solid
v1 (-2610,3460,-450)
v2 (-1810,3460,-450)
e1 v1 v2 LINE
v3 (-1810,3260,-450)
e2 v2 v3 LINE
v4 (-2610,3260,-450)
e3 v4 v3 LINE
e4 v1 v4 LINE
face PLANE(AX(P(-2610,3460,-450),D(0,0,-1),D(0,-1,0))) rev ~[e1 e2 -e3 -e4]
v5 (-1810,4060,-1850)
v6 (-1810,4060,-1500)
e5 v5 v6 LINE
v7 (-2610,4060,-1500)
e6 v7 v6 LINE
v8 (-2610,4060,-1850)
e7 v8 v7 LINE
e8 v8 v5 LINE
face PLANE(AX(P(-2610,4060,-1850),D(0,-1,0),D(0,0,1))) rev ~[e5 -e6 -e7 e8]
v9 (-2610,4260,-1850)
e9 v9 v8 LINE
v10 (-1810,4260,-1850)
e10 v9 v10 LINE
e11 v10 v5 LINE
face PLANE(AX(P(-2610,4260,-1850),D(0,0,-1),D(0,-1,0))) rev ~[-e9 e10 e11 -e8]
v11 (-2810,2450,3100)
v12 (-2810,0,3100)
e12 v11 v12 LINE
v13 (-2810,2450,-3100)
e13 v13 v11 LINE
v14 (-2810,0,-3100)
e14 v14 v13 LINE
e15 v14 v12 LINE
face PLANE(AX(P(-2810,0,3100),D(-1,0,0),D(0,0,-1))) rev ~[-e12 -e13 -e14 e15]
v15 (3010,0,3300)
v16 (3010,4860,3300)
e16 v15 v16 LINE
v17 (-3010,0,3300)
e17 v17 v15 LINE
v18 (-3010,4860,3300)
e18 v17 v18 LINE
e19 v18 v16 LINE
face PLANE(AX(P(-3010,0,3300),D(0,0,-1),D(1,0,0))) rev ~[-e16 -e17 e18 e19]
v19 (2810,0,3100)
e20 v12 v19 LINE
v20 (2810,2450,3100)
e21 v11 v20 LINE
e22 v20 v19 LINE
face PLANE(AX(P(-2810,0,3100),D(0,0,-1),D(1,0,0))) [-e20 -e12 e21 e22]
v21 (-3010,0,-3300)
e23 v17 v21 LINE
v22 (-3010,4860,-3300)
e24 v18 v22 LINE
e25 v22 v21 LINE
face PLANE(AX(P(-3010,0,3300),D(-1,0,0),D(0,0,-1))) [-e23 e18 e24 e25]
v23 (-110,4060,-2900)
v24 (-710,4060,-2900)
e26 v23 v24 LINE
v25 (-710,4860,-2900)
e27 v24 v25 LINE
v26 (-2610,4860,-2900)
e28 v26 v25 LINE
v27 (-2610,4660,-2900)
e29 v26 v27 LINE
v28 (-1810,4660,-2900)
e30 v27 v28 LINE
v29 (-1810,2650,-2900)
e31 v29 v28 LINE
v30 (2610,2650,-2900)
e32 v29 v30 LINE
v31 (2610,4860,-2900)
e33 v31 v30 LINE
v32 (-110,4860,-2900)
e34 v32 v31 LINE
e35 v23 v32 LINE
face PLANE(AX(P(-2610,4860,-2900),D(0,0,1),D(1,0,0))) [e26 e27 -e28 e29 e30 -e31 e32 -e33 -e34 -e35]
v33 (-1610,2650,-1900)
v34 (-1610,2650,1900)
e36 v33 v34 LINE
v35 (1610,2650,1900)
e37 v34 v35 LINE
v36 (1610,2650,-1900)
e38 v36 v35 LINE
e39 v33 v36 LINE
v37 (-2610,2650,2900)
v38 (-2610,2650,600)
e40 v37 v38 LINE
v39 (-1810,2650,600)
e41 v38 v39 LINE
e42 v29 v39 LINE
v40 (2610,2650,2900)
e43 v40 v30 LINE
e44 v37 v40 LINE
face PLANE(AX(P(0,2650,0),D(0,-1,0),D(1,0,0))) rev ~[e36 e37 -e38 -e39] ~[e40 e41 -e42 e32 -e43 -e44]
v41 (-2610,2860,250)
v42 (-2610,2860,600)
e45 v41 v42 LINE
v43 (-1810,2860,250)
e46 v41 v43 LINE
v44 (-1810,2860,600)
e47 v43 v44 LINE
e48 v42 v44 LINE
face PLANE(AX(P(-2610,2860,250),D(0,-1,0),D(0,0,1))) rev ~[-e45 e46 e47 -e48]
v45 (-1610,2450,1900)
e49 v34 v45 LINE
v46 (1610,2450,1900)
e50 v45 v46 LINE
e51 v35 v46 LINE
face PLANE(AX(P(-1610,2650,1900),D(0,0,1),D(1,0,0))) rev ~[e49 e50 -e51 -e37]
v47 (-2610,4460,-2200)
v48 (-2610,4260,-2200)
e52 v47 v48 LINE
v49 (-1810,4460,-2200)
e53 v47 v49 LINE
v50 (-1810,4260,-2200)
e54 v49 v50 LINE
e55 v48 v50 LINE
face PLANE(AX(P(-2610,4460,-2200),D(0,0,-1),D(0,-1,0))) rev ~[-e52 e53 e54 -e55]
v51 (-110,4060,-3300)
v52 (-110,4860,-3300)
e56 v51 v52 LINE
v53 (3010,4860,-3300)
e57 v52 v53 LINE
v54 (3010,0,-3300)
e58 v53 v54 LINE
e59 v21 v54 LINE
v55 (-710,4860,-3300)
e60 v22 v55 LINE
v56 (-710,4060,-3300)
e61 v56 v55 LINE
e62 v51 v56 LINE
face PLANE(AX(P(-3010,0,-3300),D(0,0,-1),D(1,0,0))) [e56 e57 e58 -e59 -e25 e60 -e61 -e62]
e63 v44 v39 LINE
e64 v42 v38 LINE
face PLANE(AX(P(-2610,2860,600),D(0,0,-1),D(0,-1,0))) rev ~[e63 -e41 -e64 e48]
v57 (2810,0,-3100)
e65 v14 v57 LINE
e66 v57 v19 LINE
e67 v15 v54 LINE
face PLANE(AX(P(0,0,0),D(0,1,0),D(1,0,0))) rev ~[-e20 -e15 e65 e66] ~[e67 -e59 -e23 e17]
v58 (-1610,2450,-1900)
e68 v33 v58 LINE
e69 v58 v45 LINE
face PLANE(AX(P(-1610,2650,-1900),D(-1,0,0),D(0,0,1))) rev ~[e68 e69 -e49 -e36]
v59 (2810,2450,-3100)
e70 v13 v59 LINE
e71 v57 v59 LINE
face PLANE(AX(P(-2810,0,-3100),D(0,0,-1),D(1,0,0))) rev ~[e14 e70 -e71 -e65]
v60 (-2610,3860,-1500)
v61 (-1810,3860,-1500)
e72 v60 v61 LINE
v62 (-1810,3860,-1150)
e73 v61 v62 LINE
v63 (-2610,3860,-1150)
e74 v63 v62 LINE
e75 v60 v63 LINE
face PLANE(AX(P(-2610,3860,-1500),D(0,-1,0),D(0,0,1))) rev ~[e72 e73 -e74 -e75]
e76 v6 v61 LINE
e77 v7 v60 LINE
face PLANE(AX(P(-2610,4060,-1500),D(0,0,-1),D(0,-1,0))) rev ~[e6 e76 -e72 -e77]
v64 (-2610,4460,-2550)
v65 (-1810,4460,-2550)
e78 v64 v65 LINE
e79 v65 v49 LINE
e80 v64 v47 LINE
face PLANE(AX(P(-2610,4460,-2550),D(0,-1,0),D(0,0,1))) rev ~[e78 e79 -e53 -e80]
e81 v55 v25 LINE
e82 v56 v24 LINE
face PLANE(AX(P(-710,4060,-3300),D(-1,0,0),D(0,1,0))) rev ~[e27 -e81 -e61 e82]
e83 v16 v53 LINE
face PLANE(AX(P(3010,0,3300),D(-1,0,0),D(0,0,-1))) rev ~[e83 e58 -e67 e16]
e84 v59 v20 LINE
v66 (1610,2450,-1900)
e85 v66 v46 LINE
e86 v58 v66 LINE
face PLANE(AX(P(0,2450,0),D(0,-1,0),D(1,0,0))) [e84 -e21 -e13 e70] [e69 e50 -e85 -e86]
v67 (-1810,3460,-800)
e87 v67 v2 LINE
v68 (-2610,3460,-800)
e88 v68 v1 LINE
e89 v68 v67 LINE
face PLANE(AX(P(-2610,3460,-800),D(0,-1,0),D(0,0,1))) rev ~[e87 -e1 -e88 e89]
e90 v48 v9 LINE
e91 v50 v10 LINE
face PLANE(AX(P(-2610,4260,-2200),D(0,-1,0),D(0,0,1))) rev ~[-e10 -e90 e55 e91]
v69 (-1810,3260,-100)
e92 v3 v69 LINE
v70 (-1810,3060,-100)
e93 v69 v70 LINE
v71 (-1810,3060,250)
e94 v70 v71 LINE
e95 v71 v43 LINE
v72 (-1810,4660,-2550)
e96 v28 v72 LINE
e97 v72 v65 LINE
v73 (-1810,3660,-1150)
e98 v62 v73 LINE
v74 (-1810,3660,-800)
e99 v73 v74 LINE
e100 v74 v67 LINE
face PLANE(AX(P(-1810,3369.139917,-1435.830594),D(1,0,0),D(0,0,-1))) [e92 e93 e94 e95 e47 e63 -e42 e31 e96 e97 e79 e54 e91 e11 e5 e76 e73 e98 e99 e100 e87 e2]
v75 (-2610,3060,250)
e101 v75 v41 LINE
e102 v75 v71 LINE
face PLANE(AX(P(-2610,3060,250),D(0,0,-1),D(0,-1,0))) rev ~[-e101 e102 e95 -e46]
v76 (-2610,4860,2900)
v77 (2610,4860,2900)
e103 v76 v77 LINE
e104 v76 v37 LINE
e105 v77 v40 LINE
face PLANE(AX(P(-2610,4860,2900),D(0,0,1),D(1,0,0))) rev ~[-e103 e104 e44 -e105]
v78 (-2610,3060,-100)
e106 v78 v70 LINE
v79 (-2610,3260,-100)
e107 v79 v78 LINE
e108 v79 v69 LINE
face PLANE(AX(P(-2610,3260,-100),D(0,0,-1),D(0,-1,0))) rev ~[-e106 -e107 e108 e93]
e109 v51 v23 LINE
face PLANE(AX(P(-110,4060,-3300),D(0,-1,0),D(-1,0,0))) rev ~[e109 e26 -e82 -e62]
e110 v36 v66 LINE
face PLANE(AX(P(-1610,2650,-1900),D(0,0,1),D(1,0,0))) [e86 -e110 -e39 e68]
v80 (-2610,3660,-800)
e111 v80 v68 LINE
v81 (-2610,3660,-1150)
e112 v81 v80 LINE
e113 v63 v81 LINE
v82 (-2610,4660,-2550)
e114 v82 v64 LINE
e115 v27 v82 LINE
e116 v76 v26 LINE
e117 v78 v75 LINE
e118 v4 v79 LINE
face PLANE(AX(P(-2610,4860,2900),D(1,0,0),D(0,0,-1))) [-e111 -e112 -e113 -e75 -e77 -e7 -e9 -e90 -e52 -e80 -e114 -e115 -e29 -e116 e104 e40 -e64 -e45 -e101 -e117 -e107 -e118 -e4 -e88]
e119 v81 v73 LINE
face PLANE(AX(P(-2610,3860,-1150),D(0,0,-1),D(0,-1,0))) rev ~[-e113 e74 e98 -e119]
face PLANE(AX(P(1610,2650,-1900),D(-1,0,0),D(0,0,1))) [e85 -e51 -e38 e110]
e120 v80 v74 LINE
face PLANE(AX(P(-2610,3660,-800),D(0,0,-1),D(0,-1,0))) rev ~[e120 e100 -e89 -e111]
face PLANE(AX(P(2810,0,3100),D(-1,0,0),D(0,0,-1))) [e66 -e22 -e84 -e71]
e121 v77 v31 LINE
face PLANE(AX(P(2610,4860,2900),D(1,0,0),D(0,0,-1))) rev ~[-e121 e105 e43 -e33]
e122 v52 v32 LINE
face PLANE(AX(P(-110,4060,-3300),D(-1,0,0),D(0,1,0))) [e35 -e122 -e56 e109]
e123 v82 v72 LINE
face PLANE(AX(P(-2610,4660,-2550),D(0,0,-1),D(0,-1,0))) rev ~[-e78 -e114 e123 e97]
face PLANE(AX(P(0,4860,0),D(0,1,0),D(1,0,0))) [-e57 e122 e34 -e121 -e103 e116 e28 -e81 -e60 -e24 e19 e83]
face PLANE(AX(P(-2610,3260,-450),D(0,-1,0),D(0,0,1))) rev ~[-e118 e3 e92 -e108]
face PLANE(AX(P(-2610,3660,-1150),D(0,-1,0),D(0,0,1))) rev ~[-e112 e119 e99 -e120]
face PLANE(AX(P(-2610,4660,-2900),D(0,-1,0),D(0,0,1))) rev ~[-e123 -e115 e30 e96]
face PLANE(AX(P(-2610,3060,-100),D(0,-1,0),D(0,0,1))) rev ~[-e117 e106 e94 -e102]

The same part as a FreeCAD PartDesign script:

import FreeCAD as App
import Part
import Sketcher

V = App.Vector

doc = App.newDocument("Part")
body = doc.addObject("PartDesign::Body", "Body")

# Sketch on XZ plane
sketch1 = doc.addObject("Sketcher::SketchObject", "Sketch")
body.addObject(sketch1)
sketch1.AttachmentSupport = (doc.XZ_Plane, [""])
sketch1.MapMode = "FlatFace"
sketch1.addGeometry([
    Part.LineSegment(V(-3010, -3300, 0), V(-3010, 3300, 0)),  # 0
    Part.LineSegment(V(-3010, 3300, 0), V(3010, 3300, 0)),  # 1
    Part.LineSegment(V(3010, 3300, 0), V(3010, -3300, 0)),  # 2
    Part.LineSegment(V(3010, -3300, 0), V(-3010, -3300, 0)),  # 3
    Part.LineSegment(V(2810, 3100, 0), V(-2810, 3100, 0)),  # 4
    Part.LineSegment(V(-2810, 3100, 0), V(-2810, -3100, 0)),  # 5
    Part.LineSegment(V(-2810, -3100, 0), V(2810, -3100, 0)),  # 6
    Part.LineSegment(V(2810, -3100, 0), V(2810, 3100, 0)),  # 7
], False)
sketch1.addConstraint([
    Sketcher.Constraint("Coincident", 0, 2, 1, 1),
    Sketcher.Constraint("Coincident", 1, 2, 2, 1),
    Sketcher.Constraint("Coincident", 2, 2, 3, 1),
    Sketcher.Constraint("Coincident", 3, 2, 0, 1),
    Sketcher.Constraint("Coincident", 4, 2, 5, 1),
    Sketcher.Constraint("Coincident", 5, 2, 6, 1),
    Sketcher.Constraint("Coincident", 6, 2, 7, 1),
    Sketcher.Constraint("Coincident", 7, 2, 4, 1),
    Sketcher.Constraint("Vertical", 0),
    Sketcher.Constraint("Horizontal", 1),
    Sketcher.Constraint("Vertical", 2),
    Sketcher.Constraint("Horizontal", 3),
    Sketcher.Constraint("Horizontal", 4),
    Sketcher.Constraint("Vertical", 5),
    Sketcher.Constraint("Horizontal", 6),
    Sketcher.Constraint("Vertical", 7),
    Sketcher.Constraint("Symmetric", 0, 2, 2, 2, -1, 1),
    Sketcher.Constraint("Symmetric", 4, 2, 6, 2, -1, 1),
    Sketcher.Constraint("DistanceX", 1, 1, 1, 2, 6020.0),
    Sketcher.Constraint("DistanceX", 4, 2, 4, 1, 5620.0),
    Sketcher.Constraint("DistanceY", 0, 1, 0, 2, 6600.0),
    Sketcher.Constraint("DistanceY", 5, 2, 5, 1, 6200.0),
])
pad1 = doc.addObject("PartDesign::Pad", "Pad")
body.addObject(pad1)
pad1.Profile = sketch1
pad1.Length = 4860
pad1.Reversed = True

# Sketch on XZ plane
sketch2 = doc.addObject("Sketcher::SketchObject", "Sketch001")
body.addObject(sketch2)
sketch2.AttachmentSupport = (doc.XZ_Plane, [""])
sketch2.MapMode = "FlatFace"
sketch2.addGeometry([
    Part.LineSegment(V(-3010, 3300, 0), V(-3010, -3300, 0)),
    Part.LineSegment(V(-3010, -3300, 0), V(3010, -3300, 0)),
    Part.LineSegment(V(3010, -3300, 0), V(3010, 3300, 0)),
    Part.LineSegment(V(3010, 3300, 0), V(-3010, 3300, 0)),
], False)
sketch2.addConstraint([
    Sketcher.Constraint("Coincident", 0, 2, 1, 1),
    Sketcher.Constraint("Coincident", 1, 2, 2, 1),
    Sketcher.Constraint("Coincident", 2, 2, 3, 1),
    Sketcher.Constraint("Coincident", 3, 2, 0, 1),
    Sketcher.Constraint("Vertical", 0),
    Sketcher.Constraint("Horizontal", 1),
    Sketcher.Constraint("Vertical", 2),
    Sketcher.Constraint("Horizontal", 3),
    Sketcher.Constraint("Symmetric", 0, 2, 2, 2, -1, 1),
    Sketcher.Constraint("DistanceX", 1, 1, 1, 2, 6020.0),
    Sketcher.Constraint("DistanceY", 0, 2, 0, 1, 6600.0),
])
pad2 = doc.addObject("PartDesign::Pad", "Pad001")
body.addObject(pad2)
pad2.Profile = sketch2
pad2.Length = 300
pad2.Reversed = True

# Sketch on XZ plane
sketch3 = doc.addObject("Sketcher::SketchObject", "Sketch002")
body.addObject(sketch3)
sketch3.AttachmentSupport = (doc.XZ_Plane, [""])
sketch3.MapMode = "FlatFace"
sketch3.AttachmentOffset = App.Placement(V(0, 0, -4860), App.Rotation())
sketch3.addGeometry([
    Part.LineSegment(V(-2810, -3100, 0), V(-2810, 3100, 0)),  # 0
    Part.LineSegment(V(-2810, 3100, 0), V(2810, 3100, 0)),  # 1
    Part.LineSegment(V(2810, 3100, 0), V(2810, -3100, 0)),  # 2
    Part.LineSegment(V(2810, -3100, 0), V(-2810, -3100, 0)),  # 3
    Part.LineSegment(V(2610, 2900, 0), V(-2610, 2900, 0)),  # 4
    Part.LineSegment(V(-2610, 2900, 0), V(-2610, -2900, 0)),  # 5
    Part.LineSegment(V(-2610, -2900, 0), V(2610, -2900, 0)),  # 6
    Part.LineSegment(V(2610, -2900, 0), V(2610, 2900, 0)),  # 7
], False)
sketch3.addConstraint([
    Sketcher.Constraint("Coincident", 0, 2, 1, 1),
    Sketcher.Constraint("Coincident", 1, 2, 2, 1),
    Sketcher.Constraint("Coincident", 2, 2, 3, 1),
    Sketcher.Constraint("Coincident", 3, 2, 0, 1),
    Sketcher.Constraint("Coincident", 4, 2, 5, 1),
    Sketcher.Constraint("Coincident", 5, 2, 6, 1),
    Sketcher.Constraint("Coincident", 6, 2, 7, 1),
    Sketcher.Constraint("Coincident", 7, 2, 4, 1),
    Sketcher.Constraint("Vertical", 0),
    Sketcher.Constraint("Horizontal", 1),
    Sketcher.Constraint("Vertical", 2),
    Sketcher.Constraint("Horizontal", 3),
    Sketcher.Constraint("Horizontal", 4),
    Sketcher.Constraint("Vertical", 5),
    Sketcher.Constraint("Horizontal", 6),
    Sketcher.Constraint("Vertical", 7),
    Sketcher.Constraint("Symmetric", 0, 2, 2, 2, -1, 1),
    Sketcher.Constraint("Symmetric", 4, 2, 6, 2, -1, 1),
    Sketcher.Constraint("DistanceX", 1, 1, 1, 2, 5620.0),
    Sketcher.Constraint("DistanceX", 4, 2, 4, 1, 5220.0),
    Sketcher.Constraint("DistanceY", 0, 1, 0, 2, 6200.0),
    Sketcher.Constraint("DistanceY", 5, 2, 5, 1, 5800.0),
])
pad3 = doc.addObject("PartDesign::Pad", "Pad002")
body.addObject(pad3)
pad3.Profile = sketch3
pad3.Length = 2210

# Sketch on XZ plane
sketch4 = doc.addObject("Sketcher::SketchObject", "Sketch003")
body.addObject(sketch4)
sketch4.AttachmentSupport = (doc.XZ_Plane, [""])
sketch4.MapMode = "FlatFace"
sketch4.addGeometry([
    Part.LineSegment(V(-2810, 3100, 0), V(-2810, -3100, 0)),
    Part.LineSegment(V(-2810, -3100, 0), V(2810, -3100, 0)),
    Part.LineSegment(V(2810, -3100, 0), V(2810, 3100, 0)),
    Part.LineSegment(V(2810, 3100, 0), V(-2810, 3100, 0)),
], False)
sketch4.addConstraint([
    Sketcher.Constraint("Coincident", 0, 2, 1, 1),
    Sketcher.Constraint("Coincident", 1, 2, 2, 1),
    Sketcher.Constraint("Coincident", 2, 2, 3, 1),
    Sketcher.Constraint("Coincident", 3, 2, 0, 1),
    Sketcher.Constraint("Vertical", 0),
    Sketcher.Constraint("Horizontal", 1),
    Sketcher.Constraint("Vertical", 2),
    Sketcher.Constraint("Horizontal", 3),
    Sketcher.Constraint("Symmetric", 0, 2, 2, 2, -1, 1),
    Sketcher.Constraint("DistanceX", 1, 1, 1, 2, 5620.0),
    Sketcher.Constraint("DistanceY", 0, 2, 0, 1, 6200.0),
])
pocket1 = doc.addObject("PartDesign::Pocket", "Pocket")
body.addObject(pocket1)
pocket1.Profile = sketch4
pocket1.Length = 300

# Sketch on XZ plane
sketch5 = doc.addObject("Sketcher::SketchObject", "Sketch004")
body.addObject(sketch5)
sketch5.AttachmentSupport = (doc.XZ_Plane, [""])
sketch5.MapMode = "FlatFace"
sketch5.AttachmentOffset = App.Placement(V(0, 0, -2650), App.Rotation())
sketch5.addGeometry([
    Part.LineSegment(V(-2810, 3100, 0), V(-2810, -3100, 0)),  # 0
    Part.LineSegment(V(-2810, -3100, 0), V(2810, -3100, 0)),  # 1
    Part.LineSegment(V(2810, -3100, 0), V(2810, 3100, 0)),  # 2
    Part.LineSegment(V(2810, 3100, 0), V(-2810, 3100, 0)),  # 3
    Part.LineSegment(V(1610, -1900, 0), V(-1610, -1900, 0)),  # 4
    Part.LineSegment(V(-1610, -1900, 0), V(-1610, 1900, 0)),  # 5
    Part.LineSegment(V(-1610, 1900, 0), V(1610, 1900, 0)),  # 6
    Part.LineSegment(V(1610, 1900, 0), V(1610, -1900, 0)),  # 7
], False)
sketch5.addConstraint([
    Sketcher.Constraint("Coincident", 0, 2, 1, 1),
    Sketcher.Constraint("Coincident", 1, 2, 2, 1),
    Sketcher.Constraint("Coincident", 2, 2, 3, 1),
    Sketcher.Constraint("Coincident", 3, 2, 0, 1),
    Sketcher.Constraint("Coincident", 4, 2, 5, 1),
    Sketcher.Constraint("Coincident", 5, 2, 6, 1),
    Sketcher.Constraint("Coincident", 6, 2, 7, 1),
    Sketcher.Constraint("Coincident", 7, 2, 4, 1),
    Sketcher.Constraint("Vertical", 0),
    Sketcher.Constraint("Horizontal", 1),
    Sketcher.Constraint("Vertical", 2),
    Sketcher.Constraint("Horizontal", 3),
    Sketcher.Constraint("Horizontal", 4),
    Sketcher.Constraint("Vertical", 5),
    Sketcher.Constraint("Horizontal", 6),
    Sketcher.Constraint("Vertical", 7),
    Sketcher.Constraint("Symmetric", 0, 2, 2, 2, -1, 1),
    Sketcher.Constraint("Symmetric", 4, 2, 6, 2, -1, 1),
    Sketcher.Constraint("DistanceX", 1, 1, 1, 2, 5620.0),
    Sketcher.Constraint("DistanceX", 4, 2, 4, 1, 3220.0),
    Sketcher.Constraint("DistanceY", 0, 2, 0, 1, 6200.0),
    Sketcher.Constraint("DistanceY", 5, 1, 5, 2, 3800.0),
])
pad4 = doc.addObject("PartDesign::Pad", "Pad003")
body.addObject(pad4)
pad4.Profile = sketch5
pad4.Length = 200

# Sketch on YZ plane
sketch6 = doc.addObject("Sketcher::SketchObject", "Sketch005")
body.addObject(sketch6)
sketch6.AttachmentSupport = (doc.YZ_Plane, [""])
sketch6.MapMode = "FlatFace"
sketch6.AttachmentOffset = App.Placement(V(0, 0, -2610), App.Rotation())
sketch6.addGeometry([
    Part.LineSegment(V(4660, -2900, 0), V(4660, -2550, 0)),  # 0
    Part.LineSegment(V(4660, -2550, 0), V(4460, -2550, 0)),  # 1
    Part.LineSegment(V(4460, -2550, 0), V(4460, -2200, 0)),  # 2
    Part.LineSegment(V(4460, -2200, 0), V(4260, -2200, 0)),  # 3
    Part.LineSegment(V(4260, -2200, 0), V(4260, -1850, 0)),  # 4
    Part.LineSegment(V(4260, -1850, 0), V(4060, -1850, 0)),  # 5
    Part.LineSegment(V(4060, -1850, 0), V(4060, -1500, 0)),  # 6
    Part.LineSegment(V(4060, -1500, 0), V(3860, -1500, 0)),  # 7
    Part.LineSegment(V(3860, -1500, 0), V(3860, -1150, 0)),  # 8
    Part.LineSegment(V(3860, -1150, 0), V(3660, -1150, 0)),  # 9
    Part.LineSegment(V(3660, -1150, 0), V(3660, -800, 0)),  # 10
    Part.LineSegment(V(3660, -800, 0), V(3460, -800, 0)),  # 11
    Part.LineSegment(V(3460, -800, 0), V(3460, -450, 0)),  # 12
    Part.LineSegment(V(3460, -450, 0), V(3260, -450, 0)),  # 13
    Part.LineSegment(V(3260, -450, 0), V(3260, -100, 0)),  # 14
    Part.LineSegment(V(3260, -100, 0), V(3060, -100, 0)),  # 15
    Part.LineSegment(V(3060, -100, 0), V(3060, 250, 0)),  # 16
    Part.LineSegment(V(3060, 250, 0), V(2860, 250, 0)),  # 17
    Part.LineSegment(V(2860, 250, 0), V(2860, 600, 0)),  # 18
    Part.LineSegment(V(2860, 600, 0), V(2650, 600, 0)),  # 19
    Part.LineSegment(V(2650, 600, 0), V(2650, -2900, 0)),  # 20
    Part.LineSegment(V(2650, -2900, 0), V(4660, -2900, 0)),  # 21
], False)
sketch6.addConstraint([
    Sketcher.Constraint("Coincident", 0, 2, 1, 1),
    Sketcher.Constraint("Coincident", 1, 2, 2, 1),
    Sketcher.Constraint("Coincident", 2, 2, 3, 1),
    Sketcher.Constraint("Coincident", 3, 2, 4, 1),
    Sketcher.Constraint("Coincident", 4, 2, 5, 1),
    Sketcher.Constraint("Coincident", 5, 2, 6, 1),
    Sketcher.Constraint("Coincident", 6, 2, 7, 1),
    Sketcher.Constraint("Coincident", 7, 2, 8, 1),
    Sketcher.Constraint("Coincident", 8, 2, 9, 1),
    Sketcher.Constraint("Coincident", 9, 2, 10, 1),
    Sketcher.Constraint("Coincident", 10, 2, 11, 1),
    Sketcher.Constraint("Coincident", 11, 2, 12, 1),
    Sketcher.Constraint("Coincident", 12, 2, 13, 1),
    Sketcher.Constraint("Coincident", 13, 2, 14, 1),
    Sketcher.Constraint("Coincident", 14, 2, 15, 1),
    Sketcher.Constraint("Coincident", 15, 2, 16, 1),
    Sketcher.Constraint("Coincident", 16, 2, 17, 1),
    Sketcher.Constraint("Coincident", 17, 2, 18, 1),
    Sketcher.Constraint("Coincident", 18, 2, 19, 1),
    Sketcher.Constraint("Coincident", 19, 2, 20, 1),
    Sketcher.Constraint("Coincident", 20, 2, 21, 1),
    Sketcher.Constraint("Coincident", 21, 2, 0, 1),
    Sketcher.Constraint("Vertical", 0),
    Sketcher.Constraint("Horizontal", 1),
    Sketcher.Constraint("Vertical", 2),
    Sketcher.Constraint("Horizontal", 3),
    Sketcher.Constraint("Vertical", 4),
    Sketcher.Constraint("Horizontal", 5),
    Sketcher.Constraint("Vertical", 6),
    Sketcher.Constraint("Horizontal", 7),
    Sketcher.Constraint("Vertical", 8),
    Sketcher.Constraint("Horizontal", 9),
    Sketcher.Constraint("Vertical", 10),
    Sketcher.Constraint("Horizontal", 11),
    Sketcher.Constraint("Vertical", 12),
    Sketcher.Constraint("Horizontal", 13),
    Sketcher.Constraint("Vertical", 14),
    Sketcher.Constraint("Horizontal", 15),
    Sketcher.Constraint("Vertical", 16),
    Sketcher.Constraint("Horizontal", 17),
    Sketcher.Constraint("Vertical", 18),
    Sketcher.Constraint("Horizontal", 19),
    Sketcher.Constraint("Horizontal", 21),
    Sketcher.Constraint("Equal", 1, 3),
    Sketcher.Constraint("Equal", 3, 5),
    Sketcher.Constraint("Equal", 5, 7),
    Sketcher.Constraint("Equal", 7, 9),
    Sketcher.Constraint("Equal", 9, 11),
    Sketcher.Constraint("Equal", 11, 13),
    Sketcher.Constraint("Equal", 13, 15),
    Sketcher.Constraint("Equal", 15, 17),
    Sketcher.Constraint("Equal", 0, 2),
    Sketcher.Constraint("Equal", 2, 4),
    Sketcher.Constraint("Equal", 4, 6),
    Sketcher.Constraint("Equal", 6, 8),
    Sketcher.Constraint("Equal", 8, 10),
    Sketcher.Constraint("Equal", 10, 12),
    Sketcher.Constraint("Equal", 12, 14),
    Sketcher.Constraint("Equal", 14, 16),
    Sketcher.Constraint("Equal", 16, 18),
    Sketcher.Constraint("DistanceX", 1, 2, 1, 1, 200.0),
    Sketcher.Constraint("DistanceX", 21, 1, 21, 2, 2010.0),
    Sketcher.Constraint("DistanceY", 0, 1, 0, 2, 350.0),
    Sketcher.Constraint("DistanceX", -1, 1, 0, 2, 4660.0),
    Sketcher.Constraint("DistanceY", 0, 2, -1, 1, 2550.0),
    Sketcher.Constraint("DistanceX", 19, 2, 19, 1, 210.072134),
])
pad5 = doc.addObject("PartDesign::Pad", "Pad004")
body.addObject(pad5)
pad5.Profile = sketch6
pad5.Length = 800

# Sketch on XY plane
sketch7 = doc.addObject("Sketcher::SketchObject", "Sketch006")
body.addObject(sketch7)
sketch7.AttachmentSupport = (doc.XY_Plane, [""])
sketch7.MapMode = "FlatFace"
sketch7.AttachmentOffset = App.Placement(V(0, 0, -3300), App.Rotation())
sketch7.addGeometry([
    Part.LineSegment(V(-110, 4860, 0), V(-110, 4060, 0)),
    Part.LineSegment(V(-110, 4060, 0), V(-710, 4060, 0)),
    Part.LineSegment(V(-710, 4060, 0), V(-710, 4860, 0)),
    Part.LineSegment(V(-710, 4860, 0), V(-110, 4860, 0)),
], False)
sketch7.addConstraint([
    Sketcher.Constraint("Coincident", 0, 2, 1, 1),
    Sketcher.Constraint("Coincident", 1, 2, 2, 1),
    Sketcher.Constraint("Coincident", 2, 2, 3, 1),
    Sketcher.Constraint("Coincident", 3, 2, 0, 1),
    Sketcher.Constraint("Vertical", 0),
    Sketcher.Constraint("Horizontal", 1),
    Sketcher.Constraint("Vertical", 2),
    Sketcher.Constraint("Horizontal", 3),
    Sketcher.Constraint("DistanceX", 1, 2, 1, 1, 600.0),
    Sketcher.Constraint("DistanceY", 0, 2, 0, 1, 800.0),
    Sketcher.Constraint("DistanceX", 0, 2, -1, 1, 110.0),
    Sketcher.Constraint("DistanceY", -1, 1, 0, 2, 4060.0),
])
pocket2 = doc.addObject("PartDesign::Pocket", "Pocket001")
body.addObject(pocket2)
pocket2.Profile = sketch7
pocket2.Length = 400
pocket2.Reversed = True

doc.recompute()
